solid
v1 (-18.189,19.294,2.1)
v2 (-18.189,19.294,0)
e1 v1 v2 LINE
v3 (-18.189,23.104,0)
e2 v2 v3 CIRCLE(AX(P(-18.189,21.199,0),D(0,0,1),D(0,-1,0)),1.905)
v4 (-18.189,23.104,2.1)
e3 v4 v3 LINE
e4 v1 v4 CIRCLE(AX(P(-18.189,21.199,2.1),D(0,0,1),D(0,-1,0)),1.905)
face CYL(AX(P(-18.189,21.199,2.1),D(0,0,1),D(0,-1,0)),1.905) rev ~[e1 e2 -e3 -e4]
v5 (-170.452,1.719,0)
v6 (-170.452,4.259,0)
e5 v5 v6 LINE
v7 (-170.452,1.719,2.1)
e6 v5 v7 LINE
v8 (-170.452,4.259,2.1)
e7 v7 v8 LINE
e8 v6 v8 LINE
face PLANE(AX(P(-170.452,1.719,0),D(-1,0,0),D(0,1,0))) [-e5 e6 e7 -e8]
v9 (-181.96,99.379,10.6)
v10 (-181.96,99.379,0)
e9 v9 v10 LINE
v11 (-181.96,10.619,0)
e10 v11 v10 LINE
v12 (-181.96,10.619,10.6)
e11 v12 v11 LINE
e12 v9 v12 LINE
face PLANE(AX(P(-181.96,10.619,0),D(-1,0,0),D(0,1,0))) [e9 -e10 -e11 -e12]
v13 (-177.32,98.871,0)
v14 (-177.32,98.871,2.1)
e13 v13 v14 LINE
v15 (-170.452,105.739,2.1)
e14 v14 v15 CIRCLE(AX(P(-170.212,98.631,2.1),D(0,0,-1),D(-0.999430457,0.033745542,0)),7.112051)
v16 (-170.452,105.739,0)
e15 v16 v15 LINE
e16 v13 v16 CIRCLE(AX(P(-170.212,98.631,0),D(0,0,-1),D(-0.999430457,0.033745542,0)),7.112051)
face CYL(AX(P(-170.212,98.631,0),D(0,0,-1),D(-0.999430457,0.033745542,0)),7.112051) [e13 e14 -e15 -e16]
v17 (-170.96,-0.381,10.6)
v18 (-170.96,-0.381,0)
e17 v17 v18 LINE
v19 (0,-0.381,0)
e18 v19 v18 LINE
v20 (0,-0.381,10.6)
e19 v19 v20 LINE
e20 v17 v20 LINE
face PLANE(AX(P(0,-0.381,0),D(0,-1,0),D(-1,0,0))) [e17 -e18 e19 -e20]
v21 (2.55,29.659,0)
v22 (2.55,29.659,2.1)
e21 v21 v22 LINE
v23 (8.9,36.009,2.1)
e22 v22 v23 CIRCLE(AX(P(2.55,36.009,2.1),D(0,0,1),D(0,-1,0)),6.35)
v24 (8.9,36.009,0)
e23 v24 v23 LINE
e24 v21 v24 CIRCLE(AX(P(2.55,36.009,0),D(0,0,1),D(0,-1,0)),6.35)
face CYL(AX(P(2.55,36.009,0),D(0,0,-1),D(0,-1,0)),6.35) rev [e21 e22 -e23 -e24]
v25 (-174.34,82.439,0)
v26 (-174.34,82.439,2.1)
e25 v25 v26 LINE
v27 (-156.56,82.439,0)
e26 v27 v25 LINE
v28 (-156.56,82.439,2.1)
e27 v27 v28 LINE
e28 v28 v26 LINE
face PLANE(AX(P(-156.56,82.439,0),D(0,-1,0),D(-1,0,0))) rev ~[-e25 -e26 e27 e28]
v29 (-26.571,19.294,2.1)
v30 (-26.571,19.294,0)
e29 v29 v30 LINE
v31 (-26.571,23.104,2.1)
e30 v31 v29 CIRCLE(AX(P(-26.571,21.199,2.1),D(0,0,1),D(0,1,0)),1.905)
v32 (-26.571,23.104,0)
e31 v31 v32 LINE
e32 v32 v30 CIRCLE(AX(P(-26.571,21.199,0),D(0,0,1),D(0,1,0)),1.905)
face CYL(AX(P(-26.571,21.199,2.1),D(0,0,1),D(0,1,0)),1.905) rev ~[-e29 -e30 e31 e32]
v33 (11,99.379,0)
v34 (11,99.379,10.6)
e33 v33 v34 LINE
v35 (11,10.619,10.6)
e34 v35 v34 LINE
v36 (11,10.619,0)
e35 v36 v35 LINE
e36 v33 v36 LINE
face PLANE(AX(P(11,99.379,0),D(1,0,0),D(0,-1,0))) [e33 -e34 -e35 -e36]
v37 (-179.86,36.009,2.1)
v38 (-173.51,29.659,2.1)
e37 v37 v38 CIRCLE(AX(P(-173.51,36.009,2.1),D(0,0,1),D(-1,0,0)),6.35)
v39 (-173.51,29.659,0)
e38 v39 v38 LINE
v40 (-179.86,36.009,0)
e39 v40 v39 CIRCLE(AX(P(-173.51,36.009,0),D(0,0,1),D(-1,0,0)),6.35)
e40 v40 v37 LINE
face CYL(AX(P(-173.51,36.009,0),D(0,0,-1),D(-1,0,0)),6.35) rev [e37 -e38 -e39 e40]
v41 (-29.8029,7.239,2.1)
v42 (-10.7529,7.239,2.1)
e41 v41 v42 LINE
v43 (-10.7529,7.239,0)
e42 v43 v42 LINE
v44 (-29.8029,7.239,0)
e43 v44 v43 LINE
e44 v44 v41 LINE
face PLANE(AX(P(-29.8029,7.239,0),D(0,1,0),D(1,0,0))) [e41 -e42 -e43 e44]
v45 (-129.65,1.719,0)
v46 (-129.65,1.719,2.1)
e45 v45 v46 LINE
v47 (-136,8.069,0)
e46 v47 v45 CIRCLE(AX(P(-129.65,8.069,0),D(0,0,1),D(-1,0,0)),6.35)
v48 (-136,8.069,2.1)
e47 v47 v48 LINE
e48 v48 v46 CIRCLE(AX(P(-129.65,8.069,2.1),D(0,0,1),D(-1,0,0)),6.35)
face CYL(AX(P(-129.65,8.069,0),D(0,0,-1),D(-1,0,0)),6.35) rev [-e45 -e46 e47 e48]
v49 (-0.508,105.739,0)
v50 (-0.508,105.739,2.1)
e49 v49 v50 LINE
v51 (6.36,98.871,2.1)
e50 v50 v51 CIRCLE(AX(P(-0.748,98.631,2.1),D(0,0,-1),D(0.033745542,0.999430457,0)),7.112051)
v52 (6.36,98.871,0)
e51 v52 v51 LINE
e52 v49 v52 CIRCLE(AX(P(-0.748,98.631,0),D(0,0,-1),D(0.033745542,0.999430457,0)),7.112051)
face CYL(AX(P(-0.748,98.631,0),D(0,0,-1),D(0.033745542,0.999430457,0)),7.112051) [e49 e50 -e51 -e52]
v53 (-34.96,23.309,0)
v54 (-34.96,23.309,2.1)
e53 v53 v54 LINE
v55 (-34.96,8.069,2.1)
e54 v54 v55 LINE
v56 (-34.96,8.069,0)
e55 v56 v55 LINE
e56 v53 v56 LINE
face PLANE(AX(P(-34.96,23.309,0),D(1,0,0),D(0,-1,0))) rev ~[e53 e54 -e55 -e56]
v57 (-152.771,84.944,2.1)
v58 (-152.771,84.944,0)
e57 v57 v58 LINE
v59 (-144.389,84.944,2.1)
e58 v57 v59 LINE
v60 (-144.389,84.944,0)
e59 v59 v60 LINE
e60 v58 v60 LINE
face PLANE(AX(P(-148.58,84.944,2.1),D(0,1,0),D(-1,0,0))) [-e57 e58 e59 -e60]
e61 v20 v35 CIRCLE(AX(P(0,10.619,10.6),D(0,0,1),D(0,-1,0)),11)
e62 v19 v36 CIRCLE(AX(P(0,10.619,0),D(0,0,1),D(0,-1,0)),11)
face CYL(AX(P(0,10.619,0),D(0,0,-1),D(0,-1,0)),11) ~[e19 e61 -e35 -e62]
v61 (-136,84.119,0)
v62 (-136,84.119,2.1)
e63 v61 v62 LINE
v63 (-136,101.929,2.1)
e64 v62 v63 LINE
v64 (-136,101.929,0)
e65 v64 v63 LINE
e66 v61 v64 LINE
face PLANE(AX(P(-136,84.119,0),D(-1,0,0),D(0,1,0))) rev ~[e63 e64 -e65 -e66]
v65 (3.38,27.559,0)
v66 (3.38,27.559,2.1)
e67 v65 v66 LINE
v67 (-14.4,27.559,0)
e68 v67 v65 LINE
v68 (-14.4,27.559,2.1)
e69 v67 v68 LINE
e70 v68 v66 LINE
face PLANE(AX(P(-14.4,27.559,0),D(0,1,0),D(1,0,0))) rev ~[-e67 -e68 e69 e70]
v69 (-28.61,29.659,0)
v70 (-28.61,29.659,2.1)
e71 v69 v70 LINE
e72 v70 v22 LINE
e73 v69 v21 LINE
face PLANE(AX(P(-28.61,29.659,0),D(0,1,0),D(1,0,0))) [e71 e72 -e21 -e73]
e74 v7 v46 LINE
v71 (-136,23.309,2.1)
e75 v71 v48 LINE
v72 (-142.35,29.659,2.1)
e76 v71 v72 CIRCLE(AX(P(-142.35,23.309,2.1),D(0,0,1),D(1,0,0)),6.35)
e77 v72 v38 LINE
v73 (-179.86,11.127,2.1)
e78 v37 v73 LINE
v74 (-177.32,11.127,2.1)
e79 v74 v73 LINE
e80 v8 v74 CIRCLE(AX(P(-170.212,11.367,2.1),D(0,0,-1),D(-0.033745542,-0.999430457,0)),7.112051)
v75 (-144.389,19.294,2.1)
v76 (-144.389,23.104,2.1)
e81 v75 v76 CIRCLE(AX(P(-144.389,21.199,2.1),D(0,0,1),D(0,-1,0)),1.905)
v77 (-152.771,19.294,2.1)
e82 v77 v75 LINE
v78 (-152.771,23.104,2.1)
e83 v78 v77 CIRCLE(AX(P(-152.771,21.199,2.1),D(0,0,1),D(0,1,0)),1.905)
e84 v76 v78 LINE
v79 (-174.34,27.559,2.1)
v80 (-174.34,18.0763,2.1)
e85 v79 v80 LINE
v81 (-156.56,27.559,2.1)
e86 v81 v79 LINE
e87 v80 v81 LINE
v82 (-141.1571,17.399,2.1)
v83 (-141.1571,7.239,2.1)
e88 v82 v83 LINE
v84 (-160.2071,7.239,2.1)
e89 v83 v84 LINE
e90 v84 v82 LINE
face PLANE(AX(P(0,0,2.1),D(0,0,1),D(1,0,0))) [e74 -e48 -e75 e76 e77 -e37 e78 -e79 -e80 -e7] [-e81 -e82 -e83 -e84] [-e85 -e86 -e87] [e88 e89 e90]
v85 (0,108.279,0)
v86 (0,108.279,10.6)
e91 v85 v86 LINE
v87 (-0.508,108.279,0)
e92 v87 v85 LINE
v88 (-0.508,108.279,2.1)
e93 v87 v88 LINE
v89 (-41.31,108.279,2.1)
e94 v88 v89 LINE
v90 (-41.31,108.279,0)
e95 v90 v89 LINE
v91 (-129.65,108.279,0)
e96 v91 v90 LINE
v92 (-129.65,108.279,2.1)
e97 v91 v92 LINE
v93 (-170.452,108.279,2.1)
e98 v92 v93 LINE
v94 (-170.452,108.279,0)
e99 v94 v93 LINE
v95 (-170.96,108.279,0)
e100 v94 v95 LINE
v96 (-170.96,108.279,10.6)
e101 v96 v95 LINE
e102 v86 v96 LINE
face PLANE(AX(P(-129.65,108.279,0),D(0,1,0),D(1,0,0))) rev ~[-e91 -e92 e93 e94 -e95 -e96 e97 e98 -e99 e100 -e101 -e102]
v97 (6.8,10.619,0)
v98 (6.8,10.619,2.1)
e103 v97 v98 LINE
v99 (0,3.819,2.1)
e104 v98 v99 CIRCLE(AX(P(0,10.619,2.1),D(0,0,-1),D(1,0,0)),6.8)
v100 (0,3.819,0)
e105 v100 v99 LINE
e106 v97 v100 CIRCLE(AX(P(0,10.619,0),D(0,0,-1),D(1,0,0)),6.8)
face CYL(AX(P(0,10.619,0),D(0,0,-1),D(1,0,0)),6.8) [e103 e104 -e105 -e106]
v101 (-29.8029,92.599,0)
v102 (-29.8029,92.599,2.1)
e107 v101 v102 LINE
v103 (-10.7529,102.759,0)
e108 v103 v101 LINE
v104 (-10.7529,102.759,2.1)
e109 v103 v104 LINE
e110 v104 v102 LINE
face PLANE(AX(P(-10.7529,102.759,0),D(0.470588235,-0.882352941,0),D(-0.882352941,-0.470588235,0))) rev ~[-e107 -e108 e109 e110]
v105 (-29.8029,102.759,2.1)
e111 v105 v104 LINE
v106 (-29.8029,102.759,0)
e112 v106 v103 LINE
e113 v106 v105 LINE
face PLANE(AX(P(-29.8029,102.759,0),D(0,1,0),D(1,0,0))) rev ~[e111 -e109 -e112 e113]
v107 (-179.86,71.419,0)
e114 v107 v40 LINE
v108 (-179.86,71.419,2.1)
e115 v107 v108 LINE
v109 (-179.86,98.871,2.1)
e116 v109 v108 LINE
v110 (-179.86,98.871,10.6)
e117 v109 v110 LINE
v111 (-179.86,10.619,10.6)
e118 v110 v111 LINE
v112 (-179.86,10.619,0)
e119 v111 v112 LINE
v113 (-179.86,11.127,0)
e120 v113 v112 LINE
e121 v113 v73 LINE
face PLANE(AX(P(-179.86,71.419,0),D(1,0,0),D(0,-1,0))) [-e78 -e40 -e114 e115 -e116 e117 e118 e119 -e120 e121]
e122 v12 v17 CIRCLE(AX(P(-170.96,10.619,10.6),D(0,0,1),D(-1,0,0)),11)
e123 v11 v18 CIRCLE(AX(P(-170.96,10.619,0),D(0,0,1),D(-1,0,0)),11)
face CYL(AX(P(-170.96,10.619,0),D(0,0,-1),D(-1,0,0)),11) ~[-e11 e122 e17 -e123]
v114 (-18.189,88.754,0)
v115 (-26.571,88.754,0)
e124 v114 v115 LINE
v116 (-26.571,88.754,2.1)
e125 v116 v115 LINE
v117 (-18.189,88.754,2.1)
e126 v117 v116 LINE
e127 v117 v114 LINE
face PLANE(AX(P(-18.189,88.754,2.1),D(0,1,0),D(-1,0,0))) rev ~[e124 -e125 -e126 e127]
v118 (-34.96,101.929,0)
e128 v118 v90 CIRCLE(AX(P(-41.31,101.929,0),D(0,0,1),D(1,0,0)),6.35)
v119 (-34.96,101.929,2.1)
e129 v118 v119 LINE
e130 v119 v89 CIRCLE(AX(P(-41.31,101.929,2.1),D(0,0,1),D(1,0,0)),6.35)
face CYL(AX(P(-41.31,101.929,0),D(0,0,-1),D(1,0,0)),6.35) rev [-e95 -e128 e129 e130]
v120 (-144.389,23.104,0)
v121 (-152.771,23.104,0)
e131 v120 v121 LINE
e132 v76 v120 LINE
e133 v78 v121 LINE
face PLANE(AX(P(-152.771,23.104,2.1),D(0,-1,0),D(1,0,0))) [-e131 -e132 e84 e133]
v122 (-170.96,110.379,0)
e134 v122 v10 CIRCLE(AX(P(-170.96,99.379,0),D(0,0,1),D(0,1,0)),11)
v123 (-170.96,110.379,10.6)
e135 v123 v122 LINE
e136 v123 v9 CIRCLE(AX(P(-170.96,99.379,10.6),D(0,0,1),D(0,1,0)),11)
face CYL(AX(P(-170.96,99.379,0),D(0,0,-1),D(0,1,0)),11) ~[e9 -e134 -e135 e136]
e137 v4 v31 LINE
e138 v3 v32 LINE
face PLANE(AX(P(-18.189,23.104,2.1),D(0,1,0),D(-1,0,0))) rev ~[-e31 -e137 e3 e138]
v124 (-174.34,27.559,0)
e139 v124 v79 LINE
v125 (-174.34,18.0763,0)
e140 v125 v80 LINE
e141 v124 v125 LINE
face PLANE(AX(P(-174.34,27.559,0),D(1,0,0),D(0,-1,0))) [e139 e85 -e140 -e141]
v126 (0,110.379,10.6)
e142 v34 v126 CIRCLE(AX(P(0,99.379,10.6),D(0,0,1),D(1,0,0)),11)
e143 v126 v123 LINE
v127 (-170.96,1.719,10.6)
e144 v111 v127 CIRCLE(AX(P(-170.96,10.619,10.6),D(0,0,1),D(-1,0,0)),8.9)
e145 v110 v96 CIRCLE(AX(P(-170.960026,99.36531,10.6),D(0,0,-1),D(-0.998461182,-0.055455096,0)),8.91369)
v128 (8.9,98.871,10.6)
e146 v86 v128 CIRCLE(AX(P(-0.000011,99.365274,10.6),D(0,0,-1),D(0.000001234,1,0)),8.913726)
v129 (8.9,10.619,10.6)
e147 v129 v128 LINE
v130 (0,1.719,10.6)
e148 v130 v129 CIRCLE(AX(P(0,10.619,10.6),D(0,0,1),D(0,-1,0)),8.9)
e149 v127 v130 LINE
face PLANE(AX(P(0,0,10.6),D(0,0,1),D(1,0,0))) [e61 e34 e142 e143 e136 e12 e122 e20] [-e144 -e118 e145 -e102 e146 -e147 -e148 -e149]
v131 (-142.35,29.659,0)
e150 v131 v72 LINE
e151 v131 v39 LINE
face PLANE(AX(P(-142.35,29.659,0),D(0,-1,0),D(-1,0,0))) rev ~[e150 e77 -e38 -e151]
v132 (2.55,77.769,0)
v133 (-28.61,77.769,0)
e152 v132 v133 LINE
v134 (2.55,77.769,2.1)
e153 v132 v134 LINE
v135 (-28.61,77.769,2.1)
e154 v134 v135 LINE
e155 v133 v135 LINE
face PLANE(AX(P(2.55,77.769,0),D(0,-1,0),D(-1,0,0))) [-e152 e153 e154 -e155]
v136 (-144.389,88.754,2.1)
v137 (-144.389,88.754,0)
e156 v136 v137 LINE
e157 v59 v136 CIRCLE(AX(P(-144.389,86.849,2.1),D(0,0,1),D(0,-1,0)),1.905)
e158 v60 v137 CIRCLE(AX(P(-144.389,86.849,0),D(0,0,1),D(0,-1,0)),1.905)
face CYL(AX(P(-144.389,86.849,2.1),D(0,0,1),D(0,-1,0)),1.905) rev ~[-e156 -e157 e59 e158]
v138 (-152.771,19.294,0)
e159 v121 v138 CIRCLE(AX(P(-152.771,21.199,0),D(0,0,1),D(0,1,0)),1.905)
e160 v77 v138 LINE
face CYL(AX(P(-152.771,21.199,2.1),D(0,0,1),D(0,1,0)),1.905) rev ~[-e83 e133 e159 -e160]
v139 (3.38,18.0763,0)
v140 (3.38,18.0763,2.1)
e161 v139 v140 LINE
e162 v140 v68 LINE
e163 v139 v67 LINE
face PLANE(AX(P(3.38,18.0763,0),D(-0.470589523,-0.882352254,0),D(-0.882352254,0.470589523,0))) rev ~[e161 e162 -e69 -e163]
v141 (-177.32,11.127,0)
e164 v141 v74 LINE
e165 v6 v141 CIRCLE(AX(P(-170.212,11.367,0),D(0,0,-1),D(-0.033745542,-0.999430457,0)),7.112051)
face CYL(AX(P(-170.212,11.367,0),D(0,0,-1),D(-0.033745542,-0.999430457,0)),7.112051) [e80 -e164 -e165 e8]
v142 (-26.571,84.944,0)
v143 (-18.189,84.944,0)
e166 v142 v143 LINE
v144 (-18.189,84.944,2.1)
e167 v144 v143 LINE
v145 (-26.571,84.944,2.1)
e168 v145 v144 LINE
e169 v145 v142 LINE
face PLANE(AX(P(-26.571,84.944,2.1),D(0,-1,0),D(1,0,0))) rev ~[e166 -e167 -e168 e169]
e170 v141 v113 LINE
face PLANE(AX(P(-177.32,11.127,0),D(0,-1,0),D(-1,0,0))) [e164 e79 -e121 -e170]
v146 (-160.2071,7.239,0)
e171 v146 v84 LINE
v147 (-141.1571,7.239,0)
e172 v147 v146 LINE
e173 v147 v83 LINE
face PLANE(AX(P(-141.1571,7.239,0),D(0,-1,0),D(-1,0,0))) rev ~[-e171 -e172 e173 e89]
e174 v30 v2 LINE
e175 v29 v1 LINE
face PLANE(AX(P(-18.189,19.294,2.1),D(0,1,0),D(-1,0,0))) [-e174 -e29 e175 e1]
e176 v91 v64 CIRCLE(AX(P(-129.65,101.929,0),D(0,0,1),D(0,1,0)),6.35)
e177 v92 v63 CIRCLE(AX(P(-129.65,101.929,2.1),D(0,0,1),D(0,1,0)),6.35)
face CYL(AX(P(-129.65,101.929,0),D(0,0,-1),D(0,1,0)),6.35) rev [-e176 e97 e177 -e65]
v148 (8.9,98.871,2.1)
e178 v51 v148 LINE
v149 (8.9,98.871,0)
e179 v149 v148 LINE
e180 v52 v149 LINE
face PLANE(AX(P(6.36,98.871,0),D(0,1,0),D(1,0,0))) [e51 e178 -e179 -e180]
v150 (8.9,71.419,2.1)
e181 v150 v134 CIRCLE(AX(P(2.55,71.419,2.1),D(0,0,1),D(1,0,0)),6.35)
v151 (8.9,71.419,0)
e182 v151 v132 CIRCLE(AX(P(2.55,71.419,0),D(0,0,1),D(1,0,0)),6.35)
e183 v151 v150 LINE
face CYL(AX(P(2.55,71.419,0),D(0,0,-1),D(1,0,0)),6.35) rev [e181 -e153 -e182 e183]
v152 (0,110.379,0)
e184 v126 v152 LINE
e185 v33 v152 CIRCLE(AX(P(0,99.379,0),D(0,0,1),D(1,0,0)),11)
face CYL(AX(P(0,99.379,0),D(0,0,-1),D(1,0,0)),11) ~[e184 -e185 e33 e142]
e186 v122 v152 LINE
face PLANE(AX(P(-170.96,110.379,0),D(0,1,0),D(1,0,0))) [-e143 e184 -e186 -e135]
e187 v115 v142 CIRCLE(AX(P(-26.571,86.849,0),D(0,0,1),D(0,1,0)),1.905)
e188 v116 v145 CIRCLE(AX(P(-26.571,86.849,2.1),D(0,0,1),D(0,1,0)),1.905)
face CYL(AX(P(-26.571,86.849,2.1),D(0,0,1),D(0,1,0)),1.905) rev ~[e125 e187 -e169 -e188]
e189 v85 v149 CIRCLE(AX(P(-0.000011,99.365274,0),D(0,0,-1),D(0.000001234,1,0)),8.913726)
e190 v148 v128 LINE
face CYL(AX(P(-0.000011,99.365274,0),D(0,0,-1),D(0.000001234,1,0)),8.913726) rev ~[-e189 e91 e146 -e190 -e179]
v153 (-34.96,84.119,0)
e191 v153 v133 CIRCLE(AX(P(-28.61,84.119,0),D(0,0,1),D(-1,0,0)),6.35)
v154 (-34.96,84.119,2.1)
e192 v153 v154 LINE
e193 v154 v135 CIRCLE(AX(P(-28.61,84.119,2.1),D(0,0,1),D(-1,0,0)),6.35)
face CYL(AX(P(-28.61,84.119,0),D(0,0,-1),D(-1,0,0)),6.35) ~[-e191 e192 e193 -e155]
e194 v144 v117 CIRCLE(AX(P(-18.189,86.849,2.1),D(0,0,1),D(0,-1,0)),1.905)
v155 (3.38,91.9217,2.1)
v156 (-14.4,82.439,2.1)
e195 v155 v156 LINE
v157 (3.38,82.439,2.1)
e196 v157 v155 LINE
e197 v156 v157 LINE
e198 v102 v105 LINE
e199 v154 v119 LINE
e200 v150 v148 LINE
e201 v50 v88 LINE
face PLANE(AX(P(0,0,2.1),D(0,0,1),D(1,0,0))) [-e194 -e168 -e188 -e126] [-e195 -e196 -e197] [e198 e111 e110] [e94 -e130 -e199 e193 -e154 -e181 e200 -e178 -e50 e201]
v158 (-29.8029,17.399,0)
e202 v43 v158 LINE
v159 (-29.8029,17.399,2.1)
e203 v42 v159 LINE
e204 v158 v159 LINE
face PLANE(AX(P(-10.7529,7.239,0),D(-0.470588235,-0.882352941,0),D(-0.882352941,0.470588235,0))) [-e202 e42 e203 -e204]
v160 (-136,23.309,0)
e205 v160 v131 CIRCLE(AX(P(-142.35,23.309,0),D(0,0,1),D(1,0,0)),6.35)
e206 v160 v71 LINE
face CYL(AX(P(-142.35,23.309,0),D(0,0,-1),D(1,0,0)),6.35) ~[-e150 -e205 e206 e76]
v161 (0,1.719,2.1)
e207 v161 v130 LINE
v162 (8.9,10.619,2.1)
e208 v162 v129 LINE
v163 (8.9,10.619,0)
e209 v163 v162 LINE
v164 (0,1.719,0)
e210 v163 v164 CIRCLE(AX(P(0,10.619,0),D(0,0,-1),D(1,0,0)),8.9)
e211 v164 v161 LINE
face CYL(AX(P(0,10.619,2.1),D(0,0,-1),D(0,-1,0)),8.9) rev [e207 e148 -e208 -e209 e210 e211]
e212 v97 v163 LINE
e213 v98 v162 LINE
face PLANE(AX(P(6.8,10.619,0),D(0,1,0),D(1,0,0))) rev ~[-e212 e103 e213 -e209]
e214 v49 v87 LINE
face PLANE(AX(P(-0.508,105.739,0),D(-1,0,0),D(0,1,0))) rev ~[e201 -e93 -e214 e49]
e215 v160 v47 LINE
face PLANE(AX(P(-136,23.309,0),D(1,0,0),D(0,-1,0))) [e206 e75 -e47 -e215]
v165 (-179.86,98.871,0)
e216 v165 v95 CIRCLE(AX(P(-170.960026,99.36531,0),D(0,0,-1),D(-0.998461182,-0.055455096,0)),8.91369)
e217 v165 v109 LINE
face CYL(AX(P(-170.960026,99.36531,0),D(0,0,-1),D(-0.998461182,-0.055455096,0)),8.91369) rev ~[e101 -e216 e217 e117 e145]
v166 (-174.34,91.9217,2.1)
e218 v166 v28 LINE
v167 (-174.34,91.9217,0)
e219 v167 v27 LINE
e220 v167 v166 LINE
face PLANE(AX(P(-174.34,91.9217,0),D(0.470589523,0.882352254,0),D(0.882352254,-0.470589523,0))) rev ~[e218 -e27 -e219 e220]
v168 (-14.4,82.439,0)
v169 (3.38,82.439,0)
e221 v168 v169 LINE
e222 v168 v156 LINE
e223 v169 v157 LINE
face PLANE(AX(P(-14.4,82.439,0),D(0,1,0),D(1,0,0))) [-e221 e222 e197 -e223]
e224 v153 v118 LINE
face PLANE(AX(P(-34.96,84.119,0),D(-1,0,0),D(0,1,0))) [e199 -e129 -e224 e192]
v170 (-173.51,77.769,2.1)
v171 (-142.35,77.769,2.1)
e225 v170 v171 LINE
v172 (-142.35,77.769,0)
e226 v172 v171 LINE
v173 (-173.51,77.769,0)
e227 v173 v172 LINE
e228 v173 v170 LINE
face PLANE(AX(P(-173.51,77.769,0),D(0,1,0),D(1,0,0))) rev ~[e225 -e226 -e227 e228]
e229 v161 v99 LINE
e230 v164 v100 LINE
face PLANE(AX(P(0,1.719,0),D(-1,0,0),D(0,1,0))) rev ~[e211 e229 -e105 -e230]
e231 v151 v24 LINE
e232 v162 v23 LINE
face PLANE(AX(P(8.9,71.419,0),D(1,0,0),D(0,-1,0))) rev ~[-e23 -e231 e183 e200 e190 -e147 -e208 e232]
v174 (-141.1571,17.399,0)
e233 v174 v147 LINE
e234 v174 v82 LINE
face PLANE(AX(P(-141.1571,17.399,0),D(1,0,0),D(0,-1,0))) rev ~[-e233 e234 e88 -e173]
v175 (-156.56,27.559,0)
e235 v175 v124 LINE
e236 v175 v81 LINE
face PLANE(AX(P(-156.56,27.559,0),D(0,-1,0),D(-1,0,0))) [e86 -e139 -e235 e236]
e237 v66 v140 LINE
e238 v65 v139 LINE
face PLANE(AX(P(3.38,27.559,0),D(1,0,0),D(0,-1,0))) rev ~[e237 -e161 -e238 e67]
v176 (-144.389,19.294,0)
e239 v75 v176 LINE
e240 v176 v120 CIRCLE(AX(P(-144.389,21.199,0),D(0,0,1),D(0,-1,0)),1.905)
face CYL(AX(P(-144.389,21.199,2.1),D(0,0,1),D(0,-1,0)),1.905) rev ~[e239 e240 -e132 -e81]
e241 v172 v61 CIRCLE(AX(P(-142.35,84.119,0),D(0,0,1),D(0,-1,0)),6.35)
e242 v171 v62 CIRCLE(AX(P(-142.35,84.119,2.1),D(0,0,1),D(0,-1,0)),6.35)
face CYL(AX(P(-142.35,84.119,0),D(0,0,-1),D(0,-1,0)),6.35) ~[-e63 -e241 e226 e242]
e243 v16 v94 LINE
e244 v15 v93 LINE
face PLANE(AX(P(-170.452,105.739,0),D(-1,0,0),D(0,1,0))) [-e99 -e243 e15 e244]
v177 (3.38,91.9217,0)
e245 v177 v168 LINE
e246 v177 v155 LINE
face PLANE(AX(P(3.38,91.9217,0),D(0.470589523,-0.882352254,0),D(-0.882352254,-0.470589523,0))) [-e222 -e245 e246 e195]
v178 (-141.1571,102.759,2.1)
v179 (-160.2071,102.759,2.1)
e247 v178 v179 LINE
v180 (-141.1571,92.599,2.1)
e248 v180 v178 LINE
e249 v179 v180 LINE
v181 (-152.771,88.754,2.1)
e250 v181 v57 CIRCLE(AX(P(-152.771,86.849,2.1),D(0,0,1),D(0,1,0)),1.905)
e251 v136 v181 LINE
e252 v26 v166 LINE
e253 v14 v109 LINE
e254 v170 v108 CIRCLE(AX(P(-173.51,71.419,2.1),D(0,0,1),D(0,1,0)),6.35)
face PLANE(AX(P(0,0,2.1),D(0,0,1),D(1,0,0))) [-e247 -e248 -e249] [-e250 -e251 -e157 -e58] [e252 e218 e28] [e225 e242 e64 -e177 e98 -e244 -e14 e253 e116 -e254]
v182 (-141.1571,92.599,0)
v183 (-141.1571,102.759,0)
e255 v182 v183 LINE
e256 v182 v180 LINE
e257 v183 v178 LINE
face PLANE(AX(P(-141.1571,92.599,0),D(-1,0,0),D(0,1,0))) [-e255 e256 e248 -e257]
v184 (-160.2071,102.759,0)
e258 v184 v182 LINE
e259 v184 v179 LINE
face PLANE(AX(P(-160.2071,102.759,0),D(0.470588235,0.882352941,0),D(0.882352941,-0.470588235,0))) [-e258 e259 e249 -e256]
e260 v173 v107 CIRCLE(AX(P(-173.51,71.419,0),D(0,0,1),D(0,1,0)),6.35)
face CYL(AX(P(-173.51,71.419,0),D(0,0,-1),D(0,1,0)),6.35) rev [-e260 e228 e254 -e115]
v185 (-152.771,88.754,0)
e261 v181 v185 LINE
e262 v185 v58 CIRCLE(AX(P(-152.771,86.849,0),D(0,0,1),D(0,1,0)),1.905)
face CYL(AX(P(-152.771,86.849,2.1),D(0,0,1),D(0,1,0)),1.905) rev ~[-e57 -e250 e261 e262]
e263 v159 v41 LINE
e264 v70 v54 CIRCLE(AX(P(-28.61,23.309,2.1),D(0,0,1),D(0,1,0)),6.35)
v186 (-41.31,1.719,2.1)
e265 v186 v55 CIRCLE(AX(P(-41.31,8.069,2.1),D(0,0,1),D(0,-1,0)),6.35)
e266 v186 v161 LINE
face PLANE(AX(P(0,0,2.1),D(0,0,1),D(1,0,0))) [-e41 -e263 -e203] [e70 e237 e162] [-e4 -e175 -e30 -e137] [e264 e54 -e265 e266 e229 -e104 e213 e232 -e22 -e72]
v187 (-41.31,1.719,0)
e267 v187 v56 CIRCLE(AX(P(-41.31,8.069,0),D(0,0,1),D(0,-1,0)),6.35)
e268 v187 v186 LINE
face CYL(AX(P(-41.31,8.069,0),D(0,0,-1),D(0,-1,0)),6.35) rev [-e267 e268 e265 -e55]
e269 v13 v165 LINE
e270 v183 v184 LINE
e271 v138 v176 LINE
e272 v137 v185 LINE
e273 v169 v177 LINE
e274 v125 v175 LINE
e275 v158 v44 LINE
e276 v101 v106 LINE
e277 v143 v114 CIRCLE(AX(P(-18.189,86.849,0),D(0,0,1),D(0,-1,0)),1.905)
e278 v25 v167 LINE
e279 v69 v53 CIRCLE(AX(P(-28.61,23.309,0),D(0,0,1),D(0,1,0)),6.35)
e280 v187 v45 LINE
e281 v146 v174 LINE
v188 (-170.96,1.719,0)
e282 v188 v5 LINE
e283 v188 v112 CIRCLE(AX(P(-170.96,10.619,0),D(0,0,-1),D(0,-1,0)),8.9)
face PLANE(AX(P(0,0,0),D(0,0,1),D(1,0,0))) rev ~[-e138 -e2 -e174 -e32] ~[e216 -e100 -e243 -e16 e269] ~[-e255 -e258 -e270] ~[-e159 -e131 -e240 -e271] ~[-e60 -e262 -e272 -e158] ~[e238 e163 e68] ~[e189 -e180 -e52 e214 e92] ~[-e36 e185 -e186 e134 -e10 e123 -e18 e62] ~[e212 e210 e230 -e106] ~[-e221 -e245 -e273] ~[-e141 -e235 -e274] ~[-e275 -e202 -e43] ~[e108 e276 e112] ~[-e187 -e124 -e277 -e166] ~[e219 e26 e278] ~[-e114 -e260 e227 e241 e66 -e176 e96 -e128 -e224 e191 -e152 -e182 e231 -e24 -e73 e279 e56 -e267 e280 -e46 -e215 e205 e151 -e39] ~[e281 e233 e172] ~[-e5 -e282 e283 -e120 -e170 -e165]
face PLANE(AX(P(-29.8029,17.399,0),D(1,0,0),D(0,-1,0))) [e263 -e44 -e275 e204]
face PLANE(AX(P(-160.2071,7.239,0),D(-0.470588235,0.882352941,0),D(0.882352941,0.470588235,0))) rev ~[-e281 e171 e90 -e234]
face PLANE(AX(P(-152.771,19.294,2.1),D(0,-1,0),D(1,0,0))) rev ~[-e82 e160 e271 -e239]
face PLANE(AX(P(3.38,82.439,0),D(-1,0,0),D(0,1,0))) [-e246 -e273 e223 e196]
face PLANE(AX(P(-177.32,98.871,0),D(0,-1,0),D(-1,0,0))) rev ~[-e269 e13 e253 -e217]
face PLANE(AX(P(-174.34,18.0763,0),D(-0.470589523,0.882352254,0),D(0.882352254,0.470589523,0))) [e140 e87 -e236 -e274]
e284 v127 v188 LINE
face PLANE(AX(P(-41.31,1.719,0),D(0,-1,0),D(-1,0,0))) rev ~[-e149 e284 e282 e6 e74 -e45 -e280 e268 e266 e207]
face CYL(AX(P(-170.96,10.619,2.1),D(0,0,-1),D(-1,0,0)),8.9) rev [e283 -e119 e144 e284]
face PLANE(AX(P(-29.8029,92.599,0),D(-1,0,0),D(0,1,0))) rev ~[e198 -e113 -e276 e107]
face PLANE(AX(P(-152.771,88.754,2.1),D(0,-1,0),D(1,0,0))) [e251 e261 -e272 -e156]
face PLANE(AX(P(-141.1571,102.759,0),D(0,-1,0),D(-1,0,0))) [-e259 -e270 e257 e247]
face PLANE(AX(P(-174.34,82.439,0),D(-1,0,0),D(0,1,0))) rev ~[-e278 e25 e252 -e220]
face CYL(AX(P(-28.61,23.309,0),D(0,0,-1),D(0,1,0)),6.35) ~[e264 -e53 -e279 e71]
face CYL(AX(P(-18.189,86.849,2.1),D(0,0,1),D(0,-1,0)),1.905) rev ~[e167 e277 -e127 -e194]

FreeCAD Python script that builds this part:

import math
import FreeCAD as App
import Part
import Sketcher
from FreeCAD import Vector
Q = App.Units.Quantity


def add_polygon(sketch, points):
    """Adds a closed chain of lines whose ends are joined by coincident constraints."""
    first, n = sketch.GeometryCount, len(points)
    for a, b in zip(points, points[1:] + points[:1]):
        sketch.addGeometry(Part.LineSegment(App.Vector(*a, 0), App.Vector(*b, 0)), False)
    for i in range(n):
        sketch.addConstraint(Sketcher.Constraint("Coincident", first + i, 2, first + (i + 1) % n, 1))

doc = App.newDocument("Part")
body = doc.addObject("PartDesign::Body", "Body")

sketch1 = doc.addObject("Sketcher::SketchObject", "Sketch")
body.addObject(sketch1)
sketch1.AttachmentSupport = (doc.XY_Plane, [""])
sketch1.MapMode = "FlatFace"
sketch1.addGeometry([
    Part.LineSegment(Vector(-171, -0.4, 0), Vector(0, -0.4, 0)),
    Part.ArcOfCircle(Part.Circle(Vector(0, 10.6, 0), Vector(0, 0, 1), 11), math.radians(-90), math.radians(0)),
    Part.LineSegment(Vector(11, 10.6, 0), Vector(11, 99.4, 0)),
    Part.ArcOfCircle(Part.Circle(Vector(0, 99.4, 0), Vector(0, 0, 1), 11), math.radians(0), math.radians(90)),
    Part.LineSegment(Vector(0, 110.4, 0), Vector(-171, 110.4, 0)),
    Part.ArcOfCircle(Part.Circle(Vector(-171, 99.4, 0), Vector(0, 0, 1), 11), math.radians(90), math.radians(180)),
    Part.LineSegment(Vector(-182, 99.4, 0), Vector(-182, 10.6, 0)),
    Part.ArcOfCircle(Part.Circle(Vector(-171, 10.6, 0), Vector(0, 0, 1), 11), math.radians(180), math.radians(270)),
    Part.Circle(Vector(-148.6, 21.2, 0), Vector(0, 0, 1), 1.9),
    Part.Circle(Vector(-22.4, 21.2, 0), Vector(0, 0, 1), 1.9),
    Part.ArcOfCircle(Part.Circle(Vector(-41.3, 8.1, 0), Vector(0, 0, 1), 6.4), math.radians(-90), math.radians(0)),
    Part.LineSegment(Vector(-41.3, 1.7, 0), Vector(-129.7, 1.7, 0)),
    Part.ArcOfCircle(Part.Circle(Vector(-129.7, 8.1, 0), Vector(0, 0, 1), 6.3), math.radians(180), math.radians(270)),
    Part.LineSegment(Vector(-136, 8.1, 0), Vector(-136, 23.3, 0)),
    Part.ArcOfCircle(Part.Circle(Vector(-142.3, 23.3, 0), Vector(0, 0, 1), 6.3), math.radians(0), math.radians(90)),
    Part.LineSegment(Vector(-142.3, 29.7, 0), Vector(-173.5, 29.7, 0)),
    Part.ArcOfCircle(Part.Circle(Vector(-173.5, 36, 0), Vector(0, 0, 1), 6.4), math.radians(180), math.radians(270)),
    Part.LineSegment(Vector(-179.9, 36, 0), Vector(-179.9, 71.4, 0)),
    Part.ArcOfCircle(Part.Circle(Vector(-173.5, 71.4, 0), Vector(0, 0, 1), 6.4), math.radians(90), math.radians(180)),
    Part.LineSegment(Vector(-173.5, 77.8, 0), Vector(-142.3, 77.8, 0)),
    Part.ArcOfCircle(Part.Circle(Vector(-142.3, 84.1, 0), Vector(0, 0, 1), 6.3), math.radians(-90), math.radians(0)),
    Part.LineSegment(Vector(-136, 84.1, 0), Vector(-136, 101.9, 0)),
    Part.ArcOfCircle(Part.Circle(Vector(-129.7, 101.9, 0), Vector(0, 0, 1), 6.3), math.radians(90), math.radians(180)),
    Part.LineSegment(Vector(-129.7, 108.3, 0), Vector(-41.3, 108.3, 0)),
    Part.ArcOfCircle(Part.Circle(Vector(-41.3, 101.9, 0), Vector(0, 0, 1), 6.4), math.radians(0), math.radians(90)),
    Part.LineSegment(Vector(-35, 101.9, 0), Vector(-35, 84.1, 0)),
    Part.ArcOfCircle(Part.Circle(Vector(-28.6, 84.1, 0), Vector(0, 0, 1), 6.4), math.radians(180), math.radians(270)),
    Part.LineSegment(Vector(-28.6, 77.8, 0), Vector(2.5, 77.8, 0)),
    Part.ArcOfCircle(Part.Circle(Vector(2.5, 71.4, 0), Vector(0, 0, 1), 6.4), math.radians(0), math.radians(90)),
    Part.LineSegment(Vector(8.9, 71.4, 0), Vector(8.9, 36, 0)),
    Part.ArcOfCircle(Part.Circle(Vector(2.5, 36, 0), Vector(0, 0, 1), 6.4), math.radians(-90), math.radians(0)),
    Part.LineSegment(Vector(2.5, 29.7, 0), Vector(-28.6, 29.7, 0)),
    Part.ArcOfCircle(Part.Circle(Vector(-28.6, 23.3, 0), Vector(0, 0, 1), 6.3), math.radians(90), math.radians(180)),
    Part.LineSegment(Vector(-35, 23.3, 0), Vector(-35, 8.1, 0)),
    Part.Circle(Vector(-148.6, 86.8, 0), Vector(0, 0, 1), 1.9),
    Part.Circle(Vector(-22.4, 86.8, 0), Vector(0, 0, 1), 1.9),
], False)
sketch1.addConstraint([
    Sketcher.Constraint("Tangent", 0, 2, 1, 1),
    Sketcher.Constraint("Tangent", 1, 2, 2, 1),
    Sketcher.Constraint("Tangent", 2, 2, 3, 1),
    Sketcher.Constraint("Tangent", 3, 2, 4, 1),
    Sketcher.Constraint("Tangent", 4, 2, 5, 1),
    Sketcher.Constraint("Tangent", 5, 2, 6, 1),
    Sketcher.Constraint("Tangent", 6, 2, 7, 1),
    Sketcher.Constraint("Tangent", 7, 2, 0, 1),
    Sketcher.Constraint("Tangent", 10, 1, 11, 1),
    Sketcher.Constraint("Tangent", 11, 2, 12, 2),
    Sketcher.Constraint("Tangent", 12, 1, 13, 1),
    Sketcher.Constraint("Tangent", 13, 2, 14, 1),
    Sketcher.Constraint("Tangent", 14, 2, 15, 1),
    Sketcher.Constraint("Tangent", 15, 2, 16, 2),
    Sketcher.Constraint("Tangent", 16, 1, 17, 1),
    Sketcher.Constraint("Tangent", 17, 2, 18, 2),
    Sketcher.Constraint("Tangent", 18, 1, 19, 1),
    Sketcher.Constraint("Tangent", 19, 2, 20, 1),
    Sketcher.Constraint("Tangent", 20, 2, 21, 1),
    Sketcher.Constraint("Tangent", 21, 2, 22, 2),
    Sketcher.Constraint("Tangent", 22, 1, 23, 1),
    Sketcher.Constraint("Tangent", 23, 2, 24, 2),
    Sketcher.Constraint("Tangent", 24, 1, 25, 1),
    Sketcher.Constraint("Tangent", 25, 2, 26, 1),
    Sketcher.Constraint("Tangent", 26, 2, 27, 1),
    Sketcher.Constraint("Tangent", 27, 2, 28, 2),
    Sketcher.Constraint("Tangent", 28, 1, 29, 1),
    Sketcher.Constraint("Tangent", 29, 2, 30, 2),
    Sketcher.Constraint("Tangent", 30, 1, 31, 1),
    Sketcher.Constraint("Tangent", 31, 2, 32, 1),
    Sketcher.Constraint("Tangent", 32, 2, 33, 1),
    Sketcher.Constraint("Tangent", 33, 2, 10, 2),
    Sketcher.Constraint("Horizontal", 0),
    Sketcher.Constraint("Vertical", 2),
    Sketcher.Constraint("Horizontal", 4),
    Sketcher.Constraint("Vertical", 6),
    Sketcher.Constraint("Horizontal", 11),
    Sketcher.Constraint("Vertical", 13),
    Sketcher.Constraint("Horizontal", 15),
    Sketcher.Constraint("Vertical", 17),
    Sketcher.Constraint("Horizontal", 19),
    Sketcher.Constraint("Vertical", 21),
    Sketcher.Constraint("Horizontal", 23),
    Sketcher.Constraint("Vertical", 25),
    Sketcher.Constraint("Horizontal", 27),
    Sketcher.Constraint("Vertical", 29),
    Sketcher.Constraint("Horizontal", 31),
    Sketcher.Constraint("Vertical", 33),
    Sketcher.Constraint("Equal", 1, 3),
    Sketcher.Constraint("Equal", 3, 5),
    Sketcher.Constraint("Equal", 5, 7),
    Sketcher.Constraint("Equal", 8, 9),
    Sketcher.Constraint("Equal", 10, 12),
    Sketcher.Constraint("Equal", 12, 14),
    Sketcher.Constraint("Equal", 14, 16),
    Sketcher.Constraint("Equal", 16, 18),
    Sketcher.Constraint("Equal", 18, 20),
    Sketcher.Constraint("Equal", 20, 22),
    Sketcher.Constraint("Equal", 22, 24),
    Sketcher.Constraint("Equal", 24, 26),
    Sketcher.Constraint("Equal", 26, 28),
    Sketcher.Constraint("Equal", 28, 30),
    Sketcher.Constraint("Equal", 30, 32),
    Sketcher.Constraint("Equal", 9, 34),
    Sketcher.Constraint("Equal", 34, 35),
    Sketcher.Constraint("PointOnObject", 1, 3, -2),
    Sketcher.Constraint("Horizontal", 8, 3, 9, 3),
    Sketcher.Constraint("Horizontal", 20, 3, 26, 3),
    Sketcher.Constraint("Horizontal", 16, 3, 30, 3),
    Sketcher.Constraint("Horizontal", 34, 3, 35, 3),
    Sketcher.Constraint("Vertical", 14, 3, 20, 3),
    Sketcher.Constraint("Vertical", 10, 3, 24, 3),
    Sketcher.Constraint("Vertical", 8, 3, 34, 3),
    Sketcher.Constraint("Vertical", 9, 3, 35, 3),
    Sketcher.Constraint("Equal", 19, 27),
    Sketcher.Constraint("Diameter", 8, Q("0.15 in")),
    Sketcher.Constraint("Radius", 10, Q("0.25 in")),
    Sketcher.Constraint("DistanceY", 12, 3, 16, 3, Q("1.1 in")),
    Sketcher.Constraint("Radius", 1, Q("11 mm")),
    Sketcher.Constraint("DistanceY", 35, 3, 3, 2, Q("23.53 mm")),
    Sketcher.Constraint("DistanceY", 0, 2, 10, 1, Q("2.1 mm")),
    Sketcher.Constraint("DistanceX", 6, 2, 16, 1, Q("2.1 mm")),
    Sketcher.Constraint("DistanceY", 23, 2, 3, 2, Q("2.1 mm")),
    Sketcher.Constraint("DistanceX", 28, 1, 2, 2, Q("2.1 mm")),
    Sketcher.Constraint("DistanceX", 0, 1, 0, 2, Q("6.7307 in")),
    Sketcher.Constraint("DistanceY", 2, 1, 2, 2, Q("3.4945 in")),
    Sketcher.Constraint("DistanceY", 17, 1, 17, 2, Q("1.3941 in")),
    Sketcher.Constraint("DistanceY", 0, 2, -1, 1, Q("0.015 in")),
    Sketcher.Constraint("DistanceX", 11, 2, 11, 1, Q("88.34 mm")),
    Sketcher.Constraint("DistanceX", 8, 3, -1, 1, Q("5.8496 in")),
    Sketcher.Constraint("DistanceY", -1, 1, 8, 3, Q("0.8346 in")),
    Sketcher.Constraint("DistanceX", 9, 3, -1, 1, Q("0.8811 in")),
])
pad1 = doc.addObject("PartDesign::Pad", "Pad")
body.addObject(pad1)
pad1.Profile = sketch1
pad1.Length = 2.1

sketch2 = doc.addObject("Sketcher::SketchObject", "Sketch001")
body.addObject(sketch2)
sketch2.AttachmentSupport = (doc.XY_Plane, [""])
sketch2.MapMode = "FlatFace"
sketch2.AttachmentOffset = App.Placement(Vector(0, 0, 2.1), App.Rotation())
sketch2.addGeometry([
    Part.LineSegment(Vector(-171, 0, 0), Vector(0, 0, 0)),
    Part.ArcOfCircle(Part.Circle(Vector(0, 11, 0), Vector(0, 0, 1), 11), math.radians(-90), math.radians(0)),
    Part.LineSegment(Vector(11, 11, 0), Vector(11, 99, 0)),
    Part.ArcOfCircle(Part.Circle(Vector(0, 99, 0), Vector(0, 0, 1), 11), math.radians(0), math.radians(90)),
    Part.LineSegment(Vector(0, 110, 0), Vector(-171, 110, 0)),
    Part.ArcOfCircle(Part.Circle(Vector(-171, 99, 0), Vector(0, 0, 1), 11), math.radians(90), math.radians(180)),
    Part.LineSegment(Vector(-182, 99, 0), Vector(-182, 11, 0)),
    Part.ArcOfCircle(Part.Circle(Vector(-171, 11, 0), Vector(0, 0, 1), 11), math.radians(180), math.radians(270)),
    Part.LineSegment(Vector(9, 99, 0), Vector(9, 11, 0)),
    Part.ArcOfCircle(Part.Circle(Vector(0, 11, 0), Vector(0, 0, 1), 9), math.radians(-90), math.radians(0)),
    Part.LineSegment(Vector(0, 2, 0), Vector(-171, 2, 0)),
    Part.ArcOfCircle(Part.Circle(Vector(-171, 11, 0), Vector(0, 0, 1), 9), math.radians(180), math.radians(270)),
    Part.LineSegment(Vector(-180, 11, 0), Vector(-180, 99, 0)),
    Part.ArcOfCircle(Part.Circle(Vector(-171, 99, 0), Vector(0, 0, 1), 9), math.radians(90), math.radians(180)),
    Part.LineSegment(Vector(-171, 108, 0), Vector(0, 108, 0)),
    Part.ArcOfCircle(Part.Circle(Vector(0, 99, 0), Vector(0, 0, 1), 9), math.radians(0), math.radians(90)),
], False)
sketch2.addConstraint([
    Sketcher.Constraint("Tangent", 0, 2, 1, 1),
    Sketcher.Constraint("Tangent", 1, 2, 2, 1),
    Sketcher.Constraint("Tangent", 2, 2, 3, 1),
    Sketcher.Constraint("Tangent", 3, 2, 4, 1),
    Sketcher.Constraint("Tangent", 4, 2, 5, 1),
    Sketcher.Constraint("Tangent", 5, 2, 6, 1),
    Sketcher.Constraint("Tangent", 6, 2, 7, 1),
    Sketcher.Constraint("Tangent", 7, 2, 0, 1),
    Sketcher.Constraint("Tangent", 8, 2, 9, 2),
    Sketcher.Constraint("Tangent", 9, 1, 10, 1),
    Sketcher.Constraint("Tangent", 10, 2, 11, 2),
    Sketcher.Constraint("Tangent", 11, 1, 12, 1),
    Sketcher.Constraint("Tangent", 12, 2, 13, 2),
    Sketcher.Constraint("Tangent", 13, 1, 14, 1),
    Sketcher.Constraint("Tangent", 14, 2, 15, 2),
    Sketcher.Constraint("Tangent", 15, 1, 8, 1),
    Sketcher.Constraint("Horizontal", 0),
    Sketcher.Constraint("Vertical", 2),
    Sketcher.Constraint("Horizontal", 4),
    Sketcher.Constraint("Vertical", 6),
    Sketcher.Constraint("Vertical", 8),
    Sketcher.Constraint("Horizontal", 10),
    Sketcher.Constraint("Vertical", 12),
    Sketcher.Constraint("Horizontal", 14),
    Sketcher.Constraint("Coincident", 9, 3, 1, 3),
    Sketcher.Constraint("Coincident", 11, 3, 7, 3),
    Sketcher.Constraint("Coincident", 13, 3, 5, 3),
    Sketcher.Constraint("Equal", 1, 3),
    Sketcher.Constraint("Equal", 3, 5),
    Sketcher.Constraint("Equal", 5, 7),
    Sketcher.Constraint("Equal", 13, 15),
    Sketcher.Constraint("PointOnObject", 1, 3, -2),
    Sketcher.Constraint("Radius", 9, Q("0.3504 in")),
    Sketcher.Constraint("Radius", 1, Q("11 mm")),
    Sketcher.Constraint("DistanceX", 0, 1, 0, 2, Q("6.7307 in")),
    Sketcher.Constraint("DistanceY", 2, 1, 2, 2, Q("3.4945 in")),
    Sketcher.Constraint("DistanceY", 0, 2, -1, 1, Q("0.015 in")),
])
pad2 = doc.addObject("PartDesign::Pad", "Pad001")
body.addObject(pad2)
pad2.Profile = sketch2
pad2.Length = 8.5

sketch3 = doc.addObject("Sketcher::SketchObject", "Sketch002")
body.addObject(sketch3)
sketch3.AttachmentSupport = (doc.XY_Plane, [""])
sketch3.MapMode = "FlatFace"
sketch3.addGeometry([
    Part.LineSegment(Vector(6.8, 10.6, 0), Vector(8.9, 10.6, 0)),
    Part.ArcOfCircle(Part.Circle(Vector(0, 10.6, 0), Vector(0, 0, 1), 8.9), math.radians(-90), math.radians(0)),
    Part.LineSegment(Vector(0, 1.7, 0), Vector(0, 3.8, 0)),
    Part.ArcOfCircle(Part.Circle(Vector(0, 10.6, 0), Vector(0, 0, 1), 6.8), math.radians(-90), math.radians(0)),
    Part.ArcOfCircle(Part.Circle(Vector(0, 99.4, 0), Vector(0, 0, 1), 8.9), math.radians(-3), math.radians(90)),
    Part.LineSegment(Vector(8.9, 98.9, 0), Vector(6.4, 98.9, 0)),
    Part.ArcOfCircle(Part.Circle(Vector(-0.7, 98.6, 0), Vector(0, 0, 1), 7.1), math.radians(2), math.radians(88)),
    Part.LineSegment(Vector(-0.5, 105.7, 0), Vector(-0.5, 108.3, 0)),
    Part.LineSegment(Vector(-0.5, 108.3, 0), Vector(0, 108.3, 0)),
    Part.LineSegment(Vector(-177.3, 98.9, 0), Vector(-179.9, 98.9, 0)),
    Part.ArcOfCircle(Part.Circle(Vector(-171, 99.4, 0), Vector(0, 0, 1), 8.9), math.radians(90), math.radians(183)),
    Part.LineSegment(Vector(-171, 108.3, 0), Vector(-170.5, 108.3, 0)),
    Part.LineSegment(Vector(-170.5, 108.3, 0), Vector(-170.5, 105.7, 0)),
    Part.ArcOfCircle(Part.Circle(Vector(-170.2, 98.6, 0), Vector(0, 0, 1), 7.1), math.radians(92), math.radians(178)),
    Part.LineSegment(Vector(-170.5, 4.3, 0), Vector(-170.5, 1.7, 0)),
    Part.LineSegment(Vector(-170.5, 1.7, 0), Vector(-171, 1.7, 0)),
    Part.ArcOfCircle(Part.Circle(Vector(-171, 10.6, 0), Vector(0, 0, 1), 8.9), math.radians(180), math.radians(270)),
    Part.LineSegment(Vector(-179.9, 10.6, 0), Vector(-179.9, 11.1, 0)),
    Part.LineSegment(Vector(-179.9, 11.1, 0), Vector(-177.3, 11.1, 0)),
    Part.ArcOfCircle(Part.Circle(Vector(-170.2, 11.4, 0), Vector(0, 0, 1), 7.1), math.radians(-178), math.radians(-92)),
], False)
sketch3.addConstraint([
    Sketcher.Constraint("Coincident", 0, 2, 1, 2),
    Sketcher.Constraint("Coincident", 1, 1, 2, 1),
    Sketcher.Constraint("Coincident", 2, 2, 3, 1),
    Sketcher.Constraint("Coincident", 3, 2, 0, 1),
    Sketcher.Constraint("Coincident", 4, 1, 5, 1),
    Sketcher.Constraint("Coincident", 5, 2, 6, 1),
    Sketcher.Constraint("Coincident", 6, 2, 7, 1),
    Sketcher.Constraint("Coincident", 7, 2, 8, 1),
    Sketcher.Constraint("Tangent", 8, 2, 4, 2),
    Sketcher.Constraint("Coincident", 9, 2, 10, 2),
    Sketcher.Constraint("Tangent", 10, 1, 11, 1),
    Sketcher.Constraint("Coincident", 11, 2, 12, 1),
    Sketcher.Constraint("Coincident", 12, 2, 13, 1),
    Sketcher.Constraint("Coincident", 13, 2, 9, 1),
    Sketcher.Constraint("Coincident", 14, 2, 15, 1),
    Sketcher.Constraint("Tangent", 15, 2, 16, 2),
    Sketcher.Constraint("Tangent", 16, 1, 17, 1),
    Sketcher.Constraint("Coincident", 17, 2, 18, 1),
    Sketcher.Constraint("Coincident", 18, 2, 19, 1),
    Sketcher.Constraint("Coincident", 19, 2, 14, 1),
    Sketcher.Constraint("Horizontal", 0),
    Sketcher.Constraint("Vertical", 2),
    Sketcher.Constraint("Horizontal", 5),
    Sketcher.Constraint("Vertical", 7),
    Sketcher.Constraint("Horizontal", 8),
    Sketcher.Constraint("Horizontal", 9),
    Sketcher.Constraint("Horizontal", 11),
    Sketcher.Constraint("Vertical", 12),
    Sketcher.Constraint("Vertical", 14),
    Sketcher.Constraint("Horizontal", 15),
    Sketcher.Constraint("Vertical", 17),
    Sketcher.Constraint("Horizontal", 18),
    Sketcher.Constraint("Coincident", 3, 3, 1, 3),
    Sketcher.Constraint("Equal", 4, 10),
    Sketcher.Constraint("Equal", 6, 13),
    Sketcher.Constraint("Equal", 1, 16),
    Sketcher.Constraint("Equal", 13, 19),
    Sketcher.Constraint("PointOnObject", 1, 3, -2),
    Sketcher.Constraint("PointOnObject", 4, 3, -2),
    Sketcher.Constraint("PointOnObject", 1, 1, -2),
    Sketcher.Constraint("Horizontal", 4, 3, 10, 3),
    Sketcher.Constraint("Horizontal", 6, 3, 13, 3),
    Sketcher.Constraint("Horizontal", 3, 3, 16, 3),
    Sketcher.Constraint("Horizontal", 16, 3, 0, 2),
    Sketcher.Constraint("Horizontal", 5, 2, 9, 2),
    Sketcher.Constraint("Horizontal", 6, 2, 12, 2),
    Sketcher.Constraint("Vertical", 10, 3, 16, 3),
    Sketcher.Constraint("Vertical", 13, 3, 19, 3),
    Sketcher.Constraint("Vertical", 0, 2, 4, 1),
    Sketcher.Constraint("Vertical", 12, 2, 14, 2),
    Sketcher.Constraint("Vertical", 13, 2, 18, 2),
    Sketcher.Constraint("Equal", 5, 9),
    Sketcher.Constraint("Equal", 18, 7),
    Sketcher.Constraint("Equal", 12, 14),
    Sketcher.Constraint("Equal", 15, 17),
    Sketcher.Constraint("Radius", 6, Q("0.28 in")),
    Sketcher.Constraint("DistanceX", 5, 2, 5, 1, Q("0.1 in")),
    Sketcher.Constraint("DistanceX", 8, 1, 8, 2, Q("0.02 in")),
    Sketcher.Constraint("Radius", 1, Q("0.3504 in")),
    Sketcher.Constraint("Radius", 3, Q("6.8 mm")),
    Sketcher.Constraint("DistanceY", -1, 1, 6, 3, Q("3.8831 in")),
    Sketcher.Constraint("DistanceX", 10, 3, -1, 1, Q("6.7307 in")),
    Sketcher.Constraint("DistanceY", 19, 3, 13, 3, Q("3.4356 in")),
])
pocket1 = doc.addObject("PartDesign::Pocket", "Pocket")
body.addObject(pocket1)
pocket1.Profile = sketch3
pocket1.Length = 10.6
pocket1.Reversed = True

sketch4 = doc.addObject("Sketcher::SketchObject", "Sketch003")
body.addObject(sketch4)
sketch4.AttachmentSupport = (doc.XY_Plane, [""])
sketch4.MapMode = "FlatFace"
add_polygon(sketch4, [(3, 28), (3, 18), (-14, 28)])
add_polygon(sketch4, [(-30, 17), (-11, 7), (-30, 7)])
add_polygon(sketch4, [(-157, 28), (-174, 18), (-174, 28)])
add_polygon(sketch4, [(-141, 7), (-160, 7), (-141, 17)])
add_polygon(sketch4, [(-14, 82), (3, 92), (3, 82)])
add_polygon(sketch4, [(-30, 103), (-11, 103), (-30, 93)])
add_polygon(sketch4, [(-160, 103), (-141, 103), (-141, 93)])
add_polygon(sketch4, [(-174, 82), (-174, 92), (-157, 82)])
sketch4.addConstraint([
    Sketcher.Constraint("Vertical", 0),
    Sketcher.Constraint("Horizontal", 2),
    Sketcher.Constraint("Horizontal", 4),
    Sketcher.Constraint("Vertical", 5),
    Sketcher.Constraint("Vertical", 7),
    Sketcher.Constraint("Horizontal", 8),
    Sketcher.Constraint("Horizontal", 9),
    Sketcher.Constraint("Vertical", 11),
    Sketcher.Constraint("Vertical", 13),
    Sketcher.Constraint("Horizontal", 14),
    Sketcher.Constraint("Horizontal", 15),
    Sketcher.Constraint("Vertical", 17),
    Sketcher.Constraint("Horizontal", 18),
    Sketcher.Constraint("Vertical", 19),
    Sketcher.Constraint("Vertical", 21),
    Sketcher.Constraint("Horizontal", 23),
    Sketcher.Constraint("Parallel", 1, 3),
    Sketcher.Constraint("Parallel", 6, 10),
    Sketcher.Constraint("Parallel", 10, 12),
    Sketcher.Constraint("Parallel", 12, 16),
    Sketcher.Constraint("Parallel", 3, 20),
    Sketcher.Constraint("Parallel", 20, 22),
    Sketcher.Constraint("Horizontal", 0, 2, 6, 2),
    Sketcher.Constraint("Horizontal", 2, 2, 7, 2),
    Sketcher.Constraint("Horizontal", 4, 2, 9, 2),
    Sketcher.Constraint("Horizontal", 5, 2, 10, 2),
    Sketcher.Constraint("Horizontal", 17, 2, 18, 2),
    Sketcher.Constraint("Horizontal", 16, 2, 19, 2),
    Sketcher.Constraint("Horizontal", 12, 2, 21, 2),
    Sketcher.Constraint("Horizontal", 14, 2, 22, 2),
    Sketcher.Constraint("Vertical", 2, 2, 12, 2),
    Sketcher.Constraint("Vertical", 1, 2, 14, 2),
    Sketcher.Constraint("Vertical", 3, 2, 15, 2),
    Sketcher.Constraint("Vertical", 5, 2, 16, 2),
    Sketcher.Constraint("Vertical", 11, 2, 18, 2),
    Sketcher.Constraint("Vertical", 9, 2, 20, 2),
    Sketcher.Constraint("Vertical", 7, 2, 21, 2),
    Sketcher.Constraint("DistanceX", 2, 1, 2, 2, Q("0.7 in")),
    Sketcher.Constraint("DistanceY", 5, 1, 5, 2, Q("0.4 in")),
    Sketcher.Constraint("DistanceX", 4, 2, 4, 1, Q("0.75 in")),
    Sketcher.Constraint("DistanceY", 5, 2, 1, 2, Q("0.4 in")),
    Sketcher.Constraint("DistanceY", 14, 2, 16, 2, Q("0.4 in")),
    Sketcher.Constraint("DistanceY", -1, 1, 1, 2, Q("1.085 in")),
    Sketcher.Constraint("DistanceY", 0, 2, 12, 2, Q("2.9073 in")),
    Sketcher.Constraint("DistanceX", -1, 1, 0, 2, Q("3.38 mm")),
    Sketcher.Constraint("DistanceX", 3, 2, -1, 1, Q("10.753 mm")),
    Sketcher.Constraint("DistanceX", 6, 2, -1, 1, Q("174.34 mm")),
    Sketcher.Constraint("DistanceX", 9, 2, -1, 1, Q("160.207 mm")),
])
pocket2 = doc.addObject("PartDesign::Pocket", "Pocket001")
body.addObject(pocket2)
pocket2.Profile = sketch4
pocket2.Length = 2.1
pocket2.Reversed = True

sketch5 = doc.addObject("Sketcher::SketchObject", "Sketch004")
body.addObject(sketch5)
sketch5.AttachmentSupport = (doc.XY_Plane, [""])
sketch5.MapMode = "FlatFace"
sketch5.AttachmentOffset = App.Placement(Vector(0, 0, 2.1), App.Rotation())
sketch5.addGeometry([
    Part.LineSegment(Vector(-148.6, 84.9, 0), Vector(-144.4, 84.9, 0)),
    Part.ArcOfCircle(Part.Circle(Vector(-144.4, 86.8, 0), Vector(0, 0, 1), 1.9), math.radians(-90), math.radians(90)),
    Part.LineSegment(Vector(-144.4, 88.8, 0), Vector(-148.6, 88.8, 0)),
    Part.ArcOfCircle(Part.Circle(Vector(-148.6, 86.8, 0), Vector(0, 0, 1), 1.9), math.radians(-90), math.radians(90)),
    Part.LineSegment(Vector(-152.8, 84.9, 0), Vector(-148.6, 84.9, 0)),
    Part.ArcOfCircle(Part.Circle(Vector(-148.6, 86.8, 0), Vector(0, 0, 1), 1.9), math.radians(90), math.radians(270)),
    Part.LineSegment(Vector(-148.6, 88.8, 0), Vector(-152.8, 88.8, 0)),
    Part.ArcOfCircle(Part.Circle(Vector(-152.8, 86.8, 0), Vector(0, 0, 1), 1.9), math.radians(90), math.radians(270)),
    Part.ArcOfCircle(Part.Circle(Vector(-148.6, 21.2, 0), Vector(0, 0, 1), 1.9), math.radians(-90), math.radians(90)),
    Part.LineSegment(Vector(-148.6, 19.3, 0), Vector(-144.4, 19.3, 0)),
    Part.ArcOfCircle(Part.Circle(Vector(-144.4, 21.2, 0), Vector(0, 0, 1), 1.9), math.radians(-90), math.radians(90)),
    Part.LineSegment(Vector(-144.4, 23.1, 0), Vector(-148.6, 23.1, 0)),
    Part.ArcOfCircle(Part.Circle(Vector(-148.6, 21.2, 0), Vector(0, 0, 1), 1.9), math.radians(90), math.radians(270)),
    Part.LineSegment(Vector(-148.6, 23.1, 0), Vector(-152.8, 23.1, 0)),
    Part.ArcOfCircle(Part.Circle(Vector(-152.8, 21.2, 0), Vector(0, 0, 1), 1.9), math.radians(90), math.radians(270)),
    Part.LineSegment(Vector(-152.8, 19.3, 0), Vector(-148.6, 19.3, 0)),
    Part.LineSegment(Vector(-18.2, 88.8, 0), Vector(-26.6, 88.8, 0)),
    Part.ArcOfCircle(Part.Circle(Vector(-26.6, 86.8, 0), Vector(0, 0, 1), 1.9), math.radians(90), math.radians(270)),
    Part.LineSegment(Vector(-26.6, 84.9, 0), Vector(-18.2, 84.9, 0)),
    Part.ArcOfCircle(Part.Circle(Vector(-18.2, 86.8, 0), Vector(0, 0, 1), 1.9), math.radians(-90), math.radians(90)),
    Part.LineSegment(Vector(-18.2, 23.1, 0), Vector(-26.6, 23.1, 0)),
    Part.ArcOfCircle(Part.Circle(Vector(-26.6, 21.2, 0), Vector(0, 0, 1), 1.9), math.radians(90), math.radians(270)),
    Part.LineSegment(Vector(-26.6, 19.3, 0), Vector(-18.2, 19.3, 0)),
    Part.ArcOfCircle(Part.Circle(Vector(-18.2, 21.2, 0), Vector(0, 0, 1), 1.9), math.radians(-90), math.radians(90)),
], False)
sketch5.addConstraint([
    Sketcher.Constraint("Tangent", 0, 2, 1, 1),
    Sketcher.Constraint("Tangent", 1, 2, 2, 1),
    Sketcher.Constraint("Tangent", 2, 2, 3, 2),
    Sketcher.Constraint("Tangent", 3, 1, 0, 1),
    Sketcher.Constraint("Tangent", 4, 2, 5, 2),
    Sketcher.Constraint("Tangent", 5, 1, 6, 1),
    Sketcher.Constraint("Tangent", 6, 2, 7, 1),
    Sketcher.Constraint("Tangent", 7, 2, 4, 1),
    Sketcher.Constraint("Tangent", 8, 1, 9, 1),
    Sketcher.Constraint("Tangent", 9, 2, 10, 1),
    Sketcher.Constraint("Tangent", 10, 2, 11, 1),
    Sketcher.Constraint("Tangent", 11, 2, 8, 2),
    Sketcher.Constraint("Tangent", 12, 1, 13, 1),
    Sketcher.Constraint("Tangent", 13, 2, 14, 1),
    Sketcher.Constraint("Tangent", 14, 2, 15, 1),
    Sketcher.Constraint("Tangent", 15, 2, 12, 2),
    Sketcher.Constraint("Tangent", 16, 2, 17, 1),
    Sketcher.Constraint("Tangent", 17, 2, 18, 1),
    Sketcher.Constraint("Tangent", 18, 2, 19, 1),
    Sketcher.Constraint("Tangent", 19, 2, 16, 1),
    Sketcher.Constraint("Tangent", 20, 2, 21, 1),
    Sketcher.Constraint("Tangent", 21, 2, 22, 1),
    Sketcher.Constraint("Tangent", 22, 2, 23, 1),
    Sketcher.Constraint("Tangent", 23, 2, 20, 1),
    Sketcher.Constraint("Horizontal", 0),
    Sketcher.Constraint("Horizontal", 2),
    Sketcher.Constraint("Horizontal", 4),
    Sketcher.Constraint("Horizontal", 6),
    Sketcher.Constraint("Horizontal", 9),
    Sketcher.Constraint("Horizontal", 11),
    Sketcher.Constraint("Horizontal", 13),
    Sketcher.Constraint("Horizontal", 15),
    Sketcher.Constraint("Horizontal", 16),
    Sketcher.Constraint("Horizontal", 18),
    Sketcher.Constraint("Horizontal", 20),
    Sketcher.Constraint("Horizontal", 22),
    Sketcher.Constraint("Coincident", 5, 3, 3, 3),
    Sketcher.Constraint("Coincident", 12, 3, 8, 3),
    Sketcher.Constraint("Equal", 3, 5),
    Sketcher.Constraint("Equal", 7, 8),
    Sketcher.Constraint("Equal", 10, 12),
    Sketcher.Constraint("Equal", 14, 17),
    Sketcher.Constraint("Equal", 19, 21),
    Sketcher.Constraint("Horizontal", 7, 3, 17, 3),
    Sketcher.Constraint("Horizontal", 14, 3, 21, 3),
    Sketcher.Constraint("Vertical", 5, 3, 8, 3),
    Sketcher.Constraint("Vertical", 1, 3, 10, 3),
    Sketcher.Constraint("Vertical", 7, 3, 14, 3),
    Sketcher.Constraint("Vertical", 17, 3, 21, 3),
    Sketcher.Constraint("Vertical", 19, 3, 23, 3),
    Sketcher.Constraint("Equal", 2, 4),
    Sketcher.Constraint("Radius", 1, Q("0.075 in")),
    Sketcher.Constraint("DistanceX", 16, 2, 16, 1, Q("0.33 in")),
    Sketcher.Constraint("DistanceX", 7, 3, 1, 3, Q("0.33 in")),
    Sketcher.Constraint("DistanceX", 1, 3, -1, 1, Q("5.6846 in")),
    Sketcher.Constraint("DistanceY", -1, 1, 8, 3, Q("0.8346 in")),
    Sketcher.Constraint("DistanceX", 17, 3, -1, 1, Q("1.0461 in")),
    Sketcher.Constraint("DistanceY", -1, 1, 1, 3, Q("86.849 mm")),
])
pocket3 = doc.addObject("PartDesign::Pocket", "Pocket002")
body.addObject(pocket3)
pocket3.Profile = sketch5
pocket3.Length = 2.1

doc.recompute()
